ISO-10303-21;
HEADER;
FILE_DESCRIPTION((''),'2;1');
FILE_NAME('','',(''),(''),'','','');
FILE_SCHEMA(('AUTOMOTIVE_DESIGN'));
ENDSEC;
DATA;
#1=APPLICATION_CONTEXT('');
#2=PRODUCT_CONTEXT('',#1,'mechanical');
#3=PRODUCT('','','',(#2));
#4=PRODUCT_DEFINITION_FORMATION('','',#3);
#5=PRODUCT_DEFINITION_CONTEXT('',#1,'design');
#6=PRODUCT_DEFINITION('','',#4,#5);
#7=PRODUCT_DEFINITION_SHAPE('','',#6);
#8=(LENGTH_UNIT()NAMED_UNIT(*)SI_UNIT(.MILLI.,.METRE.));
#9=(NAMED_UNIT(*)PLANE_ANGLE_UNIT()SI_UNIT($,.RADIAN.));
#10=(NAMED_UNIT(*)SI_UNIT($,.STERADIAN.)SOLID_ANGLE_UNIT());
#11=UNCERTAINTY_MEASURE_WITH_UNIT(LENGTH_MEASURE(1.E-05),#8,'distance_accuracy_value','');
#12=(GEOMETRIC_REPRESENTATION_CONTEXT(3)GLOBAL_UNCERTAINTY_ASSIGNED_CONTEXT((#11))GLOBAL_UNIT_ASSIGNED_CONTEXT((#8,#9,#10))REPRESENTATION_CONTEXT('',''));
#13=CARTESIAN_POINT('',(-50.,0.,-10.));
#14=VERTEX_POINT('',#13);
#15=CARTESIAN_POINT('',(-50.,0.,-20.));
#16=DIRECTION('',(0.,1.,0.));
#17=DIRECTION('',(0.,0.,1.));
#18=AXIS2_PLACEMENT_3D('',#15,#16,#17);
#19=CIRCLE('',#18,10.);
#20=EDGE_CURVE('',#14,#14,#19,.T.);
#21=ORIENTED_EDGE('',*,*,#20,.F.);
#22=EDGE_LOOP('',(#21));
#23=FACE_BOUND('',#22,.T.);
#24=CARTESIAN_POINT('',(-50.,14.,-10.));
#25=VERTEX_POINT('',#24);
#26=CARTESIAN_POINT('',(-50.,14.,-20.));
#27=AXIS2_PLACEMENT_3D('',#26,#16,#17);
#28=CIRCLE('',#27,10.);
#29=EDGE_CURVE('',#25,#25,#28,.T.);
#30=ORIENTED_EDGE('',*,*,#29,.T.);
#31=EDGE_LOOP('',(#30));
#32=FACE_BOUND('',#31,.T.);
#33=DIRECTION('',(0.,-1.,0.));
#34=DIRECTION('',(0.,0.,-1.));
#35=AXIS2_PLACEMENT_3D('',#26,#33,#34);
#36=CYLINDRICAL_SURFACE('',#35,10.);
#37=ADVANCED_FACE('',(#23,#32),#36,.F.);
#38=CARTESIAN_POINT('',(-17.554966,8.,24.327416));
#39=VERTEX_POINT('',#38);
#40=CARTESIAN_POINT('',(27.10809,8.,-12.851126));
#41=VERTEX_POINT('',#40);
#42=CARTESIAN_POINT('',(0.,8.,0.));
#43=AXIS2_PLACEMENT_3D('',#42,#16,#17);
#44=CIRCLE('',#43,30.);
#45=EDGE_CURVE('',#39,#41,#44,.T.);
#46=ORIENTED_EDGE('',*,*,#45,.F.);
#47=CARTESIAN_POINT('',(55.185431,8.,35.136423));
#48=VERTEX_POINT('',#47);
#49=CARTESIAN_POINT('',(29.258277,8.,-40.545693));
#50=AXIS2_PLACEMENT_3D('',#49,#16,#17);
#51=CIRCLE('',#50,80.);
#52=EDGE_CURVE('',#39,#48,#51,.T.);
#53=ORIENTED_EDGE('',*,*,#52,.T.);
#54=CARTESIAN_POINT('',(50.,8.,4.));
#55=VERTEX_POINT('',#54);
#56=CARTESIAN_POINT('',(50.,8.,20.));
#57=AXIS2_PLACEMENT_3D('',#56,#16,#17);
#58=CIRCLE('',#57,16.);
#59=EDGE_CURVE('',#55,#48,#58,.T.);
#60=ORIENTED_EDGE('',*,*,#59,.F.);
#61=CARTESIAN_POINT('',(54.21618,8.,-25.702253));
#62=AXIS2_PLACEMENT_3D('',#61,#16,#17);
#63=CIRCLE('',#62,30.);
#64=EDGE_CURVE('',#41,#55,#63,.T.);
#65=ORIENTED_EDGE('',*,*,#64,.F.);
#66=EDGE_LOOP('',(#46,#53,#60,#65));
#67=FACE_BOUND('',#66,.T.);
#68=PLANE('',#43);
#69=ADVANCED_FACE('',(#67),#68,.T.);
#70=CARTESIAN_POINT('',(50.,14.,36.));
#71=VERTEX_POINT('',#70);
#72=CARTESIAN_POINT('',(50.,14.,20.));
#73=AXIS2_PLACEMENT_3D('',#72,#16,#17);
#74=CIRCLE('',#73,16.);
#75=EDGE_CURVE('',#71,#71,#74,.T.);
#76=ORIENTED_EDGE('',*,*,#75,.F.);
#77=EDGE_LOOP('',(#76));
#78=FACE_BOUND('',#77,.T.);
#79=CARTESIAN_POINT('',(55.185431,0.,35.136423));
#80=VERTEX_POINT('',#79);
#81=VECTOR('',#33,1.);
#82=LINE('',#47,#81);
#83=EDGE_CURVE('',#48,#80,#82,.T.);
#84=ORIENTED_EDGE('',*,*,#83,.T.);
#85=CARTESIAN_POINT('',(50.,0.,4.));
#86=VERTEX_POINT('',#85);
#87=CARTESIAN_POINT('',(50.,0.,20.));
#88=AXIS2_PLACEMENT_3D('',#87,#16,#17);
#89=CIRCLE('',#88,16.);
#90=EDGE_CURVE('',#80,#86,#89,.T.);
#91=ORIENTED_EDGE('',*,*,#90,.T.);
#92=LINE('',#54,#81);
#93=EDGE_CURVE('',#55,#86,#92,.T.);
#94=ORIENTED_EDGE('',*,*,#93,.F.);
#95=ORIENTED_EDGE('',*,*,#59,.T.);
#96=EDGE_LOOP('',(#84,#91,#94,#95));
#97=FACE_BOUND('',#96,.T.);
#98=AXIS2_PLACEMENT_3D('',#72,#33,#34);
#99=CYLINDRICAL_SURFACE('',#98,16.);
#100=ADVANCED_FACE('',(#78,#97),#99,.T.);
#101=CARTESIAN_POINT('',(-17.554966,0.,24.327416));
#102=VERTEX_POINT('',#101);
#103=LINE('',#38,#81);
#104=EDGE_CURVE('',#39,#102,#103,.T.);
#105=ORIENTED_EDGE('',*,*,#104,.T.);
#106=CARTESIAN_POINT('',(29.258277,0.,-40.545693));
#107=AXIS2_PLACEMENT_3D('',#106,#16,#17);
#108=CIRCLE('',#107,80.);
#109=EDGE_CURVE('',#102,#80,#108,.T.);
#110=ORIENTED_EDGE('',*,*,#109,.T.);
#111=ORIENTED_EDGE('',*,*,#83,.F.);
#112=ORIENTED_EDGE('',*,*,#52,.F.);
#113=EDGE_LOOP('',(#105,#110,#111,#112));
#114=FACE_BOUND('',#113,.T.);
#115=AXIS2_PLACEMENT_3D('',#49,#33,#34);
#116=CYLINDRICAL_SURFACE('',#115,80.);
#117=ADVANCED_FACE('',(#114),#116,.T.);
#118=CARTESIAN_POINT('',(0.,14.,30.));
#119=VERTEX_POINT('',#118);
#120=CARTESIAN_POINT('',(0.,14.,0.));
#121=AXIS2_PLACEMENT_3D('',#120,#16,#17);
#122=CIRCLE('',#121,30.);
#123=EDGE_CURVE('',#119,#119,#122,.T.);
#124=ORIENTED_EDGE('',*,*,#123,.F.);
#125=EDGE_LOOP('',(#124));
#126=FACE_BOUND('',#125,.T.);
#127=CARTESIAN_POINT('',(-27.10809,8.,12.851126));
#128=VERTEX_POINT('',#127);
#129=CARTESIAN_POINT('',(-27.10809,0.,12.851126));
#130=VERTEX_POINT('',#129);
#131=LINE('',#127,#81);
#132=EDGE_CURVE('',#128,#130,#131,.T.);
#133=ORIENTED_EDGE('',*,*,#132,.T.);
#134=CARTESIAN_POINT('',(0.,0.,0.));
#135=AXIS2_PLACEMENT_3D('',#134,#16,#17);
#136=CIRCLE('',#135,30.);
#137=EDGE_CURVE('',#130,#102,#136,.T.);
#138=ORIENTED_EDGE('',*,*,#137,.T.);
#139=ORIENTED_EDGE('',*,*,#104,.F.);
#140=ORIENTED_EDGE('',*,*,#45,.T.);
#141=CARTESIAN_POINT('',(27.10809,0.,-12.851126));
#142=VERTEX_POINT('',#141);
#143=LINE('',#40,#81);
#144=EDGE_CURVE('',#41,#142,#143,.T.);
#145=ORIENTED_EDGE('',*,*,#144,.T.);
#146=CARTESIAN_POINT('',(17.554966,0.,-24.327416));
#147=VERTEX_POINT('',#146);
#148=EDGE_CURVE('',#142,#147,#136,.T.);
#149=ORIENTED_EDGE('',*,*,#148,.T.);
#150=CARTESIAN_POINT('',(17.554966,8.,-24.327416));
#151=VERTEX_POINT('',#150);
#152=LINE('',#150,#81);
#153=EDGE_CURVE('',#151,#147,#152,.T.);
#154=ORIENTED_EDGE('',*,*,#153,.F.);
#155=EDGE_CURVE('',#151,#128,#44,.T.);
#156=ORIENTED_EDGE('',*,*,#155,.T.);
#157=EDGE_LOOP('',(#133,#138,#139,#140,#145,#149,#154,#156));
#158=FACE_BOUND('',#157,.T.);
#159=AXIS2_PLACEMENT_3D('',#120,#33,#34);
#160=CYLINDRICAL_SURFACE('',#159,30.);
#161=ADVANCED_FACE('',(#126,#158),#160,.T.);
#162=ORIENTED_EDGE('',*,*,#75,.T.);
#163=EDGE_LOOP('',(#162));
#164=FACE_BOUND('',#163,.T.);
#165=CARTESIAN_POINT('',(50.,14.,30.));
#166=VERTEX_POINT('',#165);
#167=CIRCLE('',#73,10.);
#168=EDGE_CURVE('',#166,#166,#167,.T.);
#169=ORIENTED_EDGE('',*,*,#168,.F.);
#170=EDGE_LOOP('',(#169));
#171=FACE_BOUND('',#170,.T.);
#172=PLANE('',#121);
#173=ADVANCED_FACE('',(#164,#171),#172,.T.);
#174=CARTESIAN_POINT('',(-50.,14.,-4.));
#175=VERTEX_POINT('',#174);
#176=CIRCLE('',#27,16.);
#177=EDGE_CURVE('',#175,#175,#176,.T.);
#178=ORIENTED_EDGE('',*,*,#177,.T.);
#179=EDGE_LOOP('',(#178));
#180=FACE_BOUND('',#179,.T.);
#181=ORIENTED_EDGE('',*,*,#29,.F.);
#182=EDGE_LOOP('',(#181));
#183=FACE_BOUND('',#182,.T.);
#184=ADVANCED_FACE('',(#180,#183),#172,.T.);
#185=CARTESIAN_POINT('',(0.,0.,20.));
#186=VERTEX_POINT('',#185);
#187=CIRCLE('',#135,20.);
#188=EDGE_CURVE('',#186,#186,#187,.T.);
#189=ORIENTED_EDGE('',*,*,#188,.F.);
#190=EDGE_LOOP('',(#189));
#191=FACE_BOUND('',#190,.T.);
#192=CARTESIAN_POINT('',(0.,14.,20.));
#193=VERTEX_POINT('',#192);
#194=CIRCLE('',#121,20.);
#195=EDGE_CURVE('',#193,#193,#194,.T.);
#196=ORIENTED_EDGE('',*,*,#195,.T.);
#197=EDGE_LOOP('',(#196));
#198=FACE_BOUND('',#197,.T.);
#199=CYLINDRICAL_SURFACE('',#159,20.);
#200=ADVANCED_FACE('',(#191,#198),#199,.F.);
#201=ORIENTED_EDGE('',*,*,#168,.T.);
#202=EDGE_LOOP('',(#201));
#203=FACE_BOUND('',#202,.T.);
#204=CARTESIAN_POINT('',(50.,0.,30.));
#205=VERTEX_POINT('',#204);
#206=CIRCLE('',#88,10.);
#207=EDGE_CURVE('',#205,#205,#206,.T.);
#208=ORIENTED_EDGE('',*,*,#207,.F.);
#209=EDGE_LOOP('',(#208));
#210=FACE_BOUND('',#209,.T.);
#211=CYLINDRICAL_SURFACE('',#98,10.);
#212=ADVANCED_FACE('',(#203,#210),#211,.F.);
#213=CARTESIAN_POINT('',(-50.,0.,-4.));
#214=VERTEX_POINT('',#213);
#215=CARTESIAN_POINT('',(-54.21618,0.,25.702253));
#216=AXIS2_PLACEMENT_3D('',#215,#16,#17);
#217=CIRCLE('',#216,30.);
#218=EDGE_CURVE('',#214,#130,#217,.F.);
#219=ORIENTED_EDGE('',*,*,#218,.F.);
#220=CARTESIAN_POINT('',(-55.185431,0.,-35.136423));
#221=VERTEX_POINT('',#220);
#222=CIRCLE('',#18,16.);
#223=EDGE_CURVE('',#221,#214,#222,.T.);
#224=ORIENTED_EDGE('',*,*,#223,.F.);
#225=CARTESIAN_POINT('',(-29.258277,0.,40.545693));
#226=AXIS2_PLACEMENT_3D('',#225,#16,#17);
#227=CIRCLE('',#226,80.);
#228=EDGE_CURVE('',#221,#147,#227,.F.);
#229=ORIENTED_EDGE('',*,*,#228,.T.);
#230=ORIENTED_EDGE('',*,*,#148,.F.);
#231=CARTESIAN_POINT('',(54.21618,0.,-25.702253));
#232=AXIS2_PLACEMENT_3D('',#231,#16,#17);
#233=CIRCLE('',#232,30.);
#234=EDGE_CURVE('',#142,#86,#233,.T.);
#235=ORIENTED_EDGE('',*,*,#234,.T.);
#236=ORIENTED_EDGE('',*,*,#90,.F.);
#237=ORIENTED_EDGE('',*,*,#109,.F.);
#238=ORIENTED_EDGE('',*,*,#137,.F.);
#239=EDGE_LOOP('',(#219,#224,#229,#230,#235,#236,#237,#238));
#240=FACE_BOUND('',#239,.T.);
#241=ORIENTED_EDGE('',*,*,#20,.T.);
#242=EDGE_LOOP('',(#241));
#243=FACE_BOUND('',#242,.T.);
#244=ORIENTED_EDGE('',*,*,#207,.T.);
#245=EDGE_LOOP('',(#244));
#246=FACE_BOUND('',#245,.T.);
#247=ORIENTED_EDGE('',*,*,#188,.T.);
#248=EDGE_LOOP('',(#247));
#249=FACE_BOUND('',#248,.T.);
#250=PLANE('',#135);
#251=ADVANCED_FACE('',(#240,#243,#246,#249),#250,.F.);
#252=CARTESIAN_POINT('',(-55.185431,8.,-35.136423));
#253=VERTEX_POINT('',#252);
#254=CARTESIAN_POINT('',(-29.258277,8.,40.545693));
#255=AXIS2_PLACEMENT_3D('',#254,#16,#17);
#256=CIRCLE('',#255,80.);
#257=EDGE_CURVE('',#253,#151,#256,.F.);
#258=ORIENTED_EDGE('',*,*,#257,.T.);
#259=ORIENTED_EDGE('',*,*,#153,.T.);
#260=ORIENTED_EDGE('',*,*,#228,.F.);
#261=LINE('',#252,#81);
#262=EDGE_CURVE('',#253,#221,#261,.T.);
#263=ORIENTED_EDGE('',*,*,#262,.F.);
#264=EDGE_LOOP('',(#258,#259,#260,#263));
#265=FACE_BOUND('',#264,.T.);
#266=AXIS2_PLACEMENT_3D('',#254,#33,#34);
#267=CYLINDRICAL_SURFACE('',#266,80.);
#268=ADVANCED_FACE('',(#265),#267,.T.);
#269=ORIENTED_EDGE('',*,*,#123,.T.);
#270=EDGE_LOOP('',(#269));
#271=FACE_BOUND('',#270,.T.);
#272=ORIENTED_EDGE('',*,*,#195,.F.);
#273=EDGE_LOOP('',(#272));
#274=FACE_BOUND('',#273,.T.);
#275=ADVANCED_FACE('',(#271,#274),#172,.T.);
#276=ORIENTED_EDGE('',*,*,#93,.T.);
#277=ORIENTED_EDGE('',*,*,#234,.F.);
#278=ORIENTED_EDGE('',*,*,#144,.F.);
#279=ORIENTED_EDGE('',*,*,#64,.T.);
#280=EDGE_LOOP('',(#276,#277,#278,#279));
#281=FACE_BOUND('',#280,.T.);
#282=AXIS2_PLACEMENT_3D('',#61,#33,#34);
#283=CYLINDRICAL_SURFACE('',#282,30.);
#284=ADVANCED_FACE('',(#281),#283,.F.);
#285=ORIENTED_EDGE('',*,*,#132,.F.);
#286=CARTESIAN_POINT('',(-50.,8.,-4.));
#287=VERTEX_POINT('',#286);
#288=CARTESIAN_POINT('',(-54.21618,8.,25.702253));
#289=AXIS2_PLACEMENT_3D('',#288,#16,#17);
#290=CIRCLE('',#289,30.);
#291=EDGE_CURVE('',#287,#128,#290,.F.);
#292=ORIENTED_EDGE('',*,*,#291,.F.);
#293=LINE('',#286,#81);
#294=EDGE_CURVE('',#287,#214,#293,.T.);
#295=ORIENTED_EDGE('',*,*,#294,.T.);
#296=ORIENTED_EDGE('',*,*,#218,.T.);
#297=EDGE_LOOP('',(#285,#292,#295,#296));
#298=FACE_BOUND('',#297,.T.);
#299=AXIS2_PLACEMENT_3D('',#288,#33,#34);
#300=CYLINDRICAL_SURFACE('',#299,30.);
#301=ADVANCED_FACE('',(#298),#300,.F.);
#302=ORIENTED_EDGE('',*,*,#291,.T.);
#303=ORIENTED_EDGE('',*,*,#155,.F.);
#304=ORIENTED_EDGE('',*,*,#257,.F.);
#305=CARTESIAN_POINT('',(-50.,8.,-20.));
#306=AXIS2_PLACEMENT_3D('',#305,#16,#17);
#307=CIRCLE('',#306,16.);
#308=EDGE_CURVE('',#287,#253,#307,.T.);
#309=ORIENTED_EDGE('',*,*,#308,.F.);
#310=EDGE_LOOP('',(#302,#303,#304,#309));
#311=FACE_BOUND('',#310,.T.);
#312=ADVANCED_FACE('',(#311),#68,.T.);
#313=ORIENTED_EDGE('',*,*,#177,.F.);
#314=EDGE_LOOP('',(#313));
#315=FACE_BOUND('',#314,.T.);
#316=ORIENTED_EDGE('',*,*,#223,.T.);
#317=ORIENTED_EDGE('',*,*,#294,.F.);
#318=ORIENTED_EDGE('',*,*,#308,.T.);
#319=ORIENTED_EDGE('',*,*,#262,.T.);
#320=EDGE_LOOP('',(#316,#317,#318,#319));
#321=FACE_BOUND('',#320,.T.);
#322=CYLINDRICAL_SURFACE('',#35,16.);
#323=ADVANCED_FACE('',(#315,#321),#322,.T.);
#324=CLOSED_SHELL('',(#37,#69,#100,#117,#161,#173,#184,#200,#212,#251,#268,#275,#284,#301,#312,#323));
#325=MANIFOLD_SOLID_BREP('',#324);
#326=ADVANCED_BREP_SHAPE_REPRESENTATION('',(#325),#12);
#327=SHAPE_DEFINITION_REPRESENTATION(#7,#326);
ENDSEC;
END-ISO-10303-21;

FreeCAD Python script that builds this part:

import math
import FreeCAD as App
import Part
import Sketcher
from FreeCAD import Vector
Q = App.Units.Quantity

doc = App.newDocument("Part")
body = doc.addObject("PartDesign::Body", "Body")

# Sketch on XZ plane
sketch1 = body.newObject("Sketcher::SketchObject", "Sketch")
sketch1.AttachmentSupport = (doc.getObject("XZ_Plane"), [""])
sketch1.MapMode = "FlatFace"
sketch1.addGeometry(Part.ArcOfCircle(Part.Circle(Vector(0, 0, 0), Vector(0, 0, 1), 30), math.radians(155), math.radians(306)), False)
sketch1.addGeometry(Part.ArcOfCircle(Part.Circle(Vector(-29, 41, 0), Vector(0, 0, 1), 80), math.radians(-109), math.radians(-54)), False)
sketch1.addGeometry(Part.ArcOfCircle(Part.Circle(Vector(-50, -20, 0), Vector(0, 0, 1), 16), math.radians(-109), math.radians(0)), False)
sketch1.addGeometry(Part.ArcOfCircle(Part.Circle(Vector(-50, -20, 0), Vector(0, 0, 1), 16), math.radians(0), math.radians(90)), False)
sketch1.addGeometry(Part.ArcOfCircle(Part.Circle(Vector(-54, 26, 0), Vector(0, 0, 1), 30), math.radians(-82), math.radians(-25)), False)
sketch1.addConstraint(Sketcher.Constraint("Tangent", 0, 2, 1, 2))
sketch1.addConstraint(Sketcher.Constraint("Tangent", 1, 1, 2, 1))
sketch1.addConstraint(Sketcher.Constraint("Tangent", 2, 2, 3, 1))
sketch1.addConstraint(Sketcher.Constraint("Coincident", 3, 2, 4, 1))
sketch1.addConstraint(Sketcher.Constraint("Tangent", 4, 2, 0, 1))
sketch1.addConstraint(Sketcher.Constraint("Coincident", 0, 3, -1, 1))
sketch1.addConstraint(Sketcher.Constraint("Equal", 2, 3))
sketch1.addConstraint(Sketcher.Constraint("Equal", 0, 4))
sketch1.addConstraint(Sketcher.Constraint("Horizontal", 3, 3, 2, 2))
sketch1.addConstraint(Sketcher.Constraint("Vertical", 2, 3, 3, 2))
sketch1.addConstraint(Sketcher.Constraint("Radius", 0, Q("30 mm")))
sketch1.addConstraint(Sketcher.Constraint("Radius", 1, Q("80 mm")))
sketch1.addConstraint(Sketcher.Constraint("Radius", 2, Q("16 mm")))
sketch1.addConstraint(Sketcher.Constraint("DistanceX", 2, 3, -1, 1, Q("50 mm")))
sketch1.addConstraint(Sketcher.Constraint("DistanceY", 2, 3, -1, 1, Q("20 mm")))
pad1 = body.newObject("PartDesign::Pad", "Pad")
pad1.Profile = sketch1
pad1.Length = 8
pad1.Reversed = True
body2 = doc.addObject("PartDesign::Body", "Body001")

# Sketch on XZ plane
sketch2 = body2.newObject("Sketcher::SketchObject", "Sketch001")
sketch2.AttachmentSupport = (doc.getObject("XZ_Plane001"), [""])
sketch2.MapMode = "FlatFace"
sketch2.addGeometry(Part.ArcOfCircle(Part.Circle(Vector(0, 0, 0), Vector(0, 0, 1), 30), math.radians(-25), math.radians(0)), False)
sketch2.addGeometry(Part.ArcOfCircle(Part.Circle(Vector(0, 0, 0), Vector(0, 0, 1), 30), math.radians(0), math.radians(126)), False)
sketch2.addGeometry(Part.ArcOfCircle(Part.Circle(Vector(29, -41, 0), Vector(0, 0, 1), 80), math.radians(71), math.radians(126)), False)
sketch2.addGeometry(Part.ArcOfCircle(Part.Circle(Vector(50, 20, 0), Vector(0, 0, 1), 16), math.radians(71), math.radians(270)), False)
sketch2.addGeometry(Part.ArcOfCircle(Part.Circle(Vector(54, -26, 0), Vector(0, 0, 1), 30), math.radians(98), math.radians(155)), False)
sketch2.addConstraint(Sketcher.Constraint("Tangent", 0, 2, 1, 1))
sketch2.addConstraint(Sketcher.Constraint("Tangent", 1, 2, 2, 2))
sketch2.addConstraint(Sketcher.Constraint("Tangent", 2, 1, 3, 1))
sketch2.addConstraint(Sketcher.Constraint("Coincident", 3, 2, 4, 1))
sketch2.addConstraint(Sketcher.Constraint("Tangent", 4, 2, 0, 1))
sketch2.addConstraint(Sketcher.Constraint("Coincident", 0, 3, -1, 1))
sketch2.addConstraint(Sketcher.Constraint("Equal", 0, 1))
sketch2.addConstraint(Sketcher.Constraint("Equal", 1, 4))
sketch2.addConstraint(Sketcher.Constraint("PointOnObject", 0, 2, -1))
sketch2.addConstraint(Sketcher.Constraint("Radius", 0, Q("30 mm")))
sketch2.addConstraint(Sketcher.Constraint("Radius", 2, Q("80 mm")))
sketch2.addConstraint(Sketcher.Constraint("Radius", 3, Q("16 mm")))
sketch2.addConstraint(Sketcher.Constraint("DistanceX", -1, 1, 3, 3, Q("50 mm")))
sketch2.addConstraint(Sketcher.Constraint("DistanceY", -1, 1, 3, 3, Q("20 mm")))
sketch2.addConstraint(Sketcher.Constraint("DistanceX", -1, 1, 3, 2, Q("50 mm")))
pad2 = body2.newObject("PartDesign::Pad", "Pad001")
pad2.Profile = sketch2
pad2.Length = 8
pad2.Reversed = True
body.AllowCompound = True
doc.recompute()

boolean = body.newObject("PartDesign::Boolean", "Boolean")
boolean.Type = "Fuse"
boolean.addObjects([body2])

# Sketch on XZ plane
sketch3 = body.newObject("Sketcher::SketchObject", "Sketch002")
sketch3.AttachmentSupport = (doc.getObject("XZ_Plane"), [""])
sketch3.MapMode = "FlatFace"
sketch3.addGeometry(Part.Circle(Vector(-50, -20, 0), Vector(0, 0, 1), 16), False)
sketch3.addGeometry(Part.Circle(Vector(-50, -20, 0), Vector(0, 0, 1), 10), False)
sketch3.addGeometry(Part.Circle(Vector(0, 0, 0), Vector(0, 0, 1), 30), False)
sketch3.addGeometry(Part.Circle(Vector(0, 0, 0), Vector(0, 0, 1), 20), False)
sketch3.addGeometry(Part.Circle(Vector(50, 20, 0), Vector(0, 0, 1), 16), False)
sketch3.addGeometry(Part.Circle(Vector(50, 20, 0), Vector(0, 0, 1), 10), False)
sketch3.addConstraint(Sketcher.Constraint("Coincident", 2, 3, -1, 1))
sketch3.addConstraint(Sketcher.Constraint("Coincident", 3, 3, -1, 1))
sketch3.addConstraint(Sketcher.Constraint("Coincident", 1, 3, 0, 3))
sketch3.addConstraint(Sketcher.Constraint("Coincident", 5, 3, 4, 3))
sketch3.addConstraint(Sketcher.Constraint("Equal", 0, 4))
sketch3.addConstraint(Sketcher.Constraint("Equal", 1, 5))
sketch3.addConstraint(Sketcher.Constraint("Symmetric", 0, 3, 4, 3, -1, 1))
sketch3.addConstraint(Sketcher.Constraint("Diameter", 0, Q("32 mm")))
sketch3.addConstraint(Sketcher.Constraint("Diameter", 1, Q("20 mm")))
sketch3.addConstraint(Sketcher.Constraint("Diameter", 2, Q("60 mm")))
sketch3.addConstraint(Sketcher.Constraint("Diameter", 3, Q("40 mm")))
sketch3.addConstraint(Sketcher.Constraint("DistanceX", 0, 3, -1, 1, Q("50 mm")))
sketch3.addConstraint(Sketcher.Constraint("DistanceY", 0, 3, -1, 1, Q("20 mm")))
pad3 = body.newObject("PartDesign::Pad", "Pad002")
pad3.Profile = sketch3
pad3.Length = 14
pad3.Reversed = True

doc.recompute()
